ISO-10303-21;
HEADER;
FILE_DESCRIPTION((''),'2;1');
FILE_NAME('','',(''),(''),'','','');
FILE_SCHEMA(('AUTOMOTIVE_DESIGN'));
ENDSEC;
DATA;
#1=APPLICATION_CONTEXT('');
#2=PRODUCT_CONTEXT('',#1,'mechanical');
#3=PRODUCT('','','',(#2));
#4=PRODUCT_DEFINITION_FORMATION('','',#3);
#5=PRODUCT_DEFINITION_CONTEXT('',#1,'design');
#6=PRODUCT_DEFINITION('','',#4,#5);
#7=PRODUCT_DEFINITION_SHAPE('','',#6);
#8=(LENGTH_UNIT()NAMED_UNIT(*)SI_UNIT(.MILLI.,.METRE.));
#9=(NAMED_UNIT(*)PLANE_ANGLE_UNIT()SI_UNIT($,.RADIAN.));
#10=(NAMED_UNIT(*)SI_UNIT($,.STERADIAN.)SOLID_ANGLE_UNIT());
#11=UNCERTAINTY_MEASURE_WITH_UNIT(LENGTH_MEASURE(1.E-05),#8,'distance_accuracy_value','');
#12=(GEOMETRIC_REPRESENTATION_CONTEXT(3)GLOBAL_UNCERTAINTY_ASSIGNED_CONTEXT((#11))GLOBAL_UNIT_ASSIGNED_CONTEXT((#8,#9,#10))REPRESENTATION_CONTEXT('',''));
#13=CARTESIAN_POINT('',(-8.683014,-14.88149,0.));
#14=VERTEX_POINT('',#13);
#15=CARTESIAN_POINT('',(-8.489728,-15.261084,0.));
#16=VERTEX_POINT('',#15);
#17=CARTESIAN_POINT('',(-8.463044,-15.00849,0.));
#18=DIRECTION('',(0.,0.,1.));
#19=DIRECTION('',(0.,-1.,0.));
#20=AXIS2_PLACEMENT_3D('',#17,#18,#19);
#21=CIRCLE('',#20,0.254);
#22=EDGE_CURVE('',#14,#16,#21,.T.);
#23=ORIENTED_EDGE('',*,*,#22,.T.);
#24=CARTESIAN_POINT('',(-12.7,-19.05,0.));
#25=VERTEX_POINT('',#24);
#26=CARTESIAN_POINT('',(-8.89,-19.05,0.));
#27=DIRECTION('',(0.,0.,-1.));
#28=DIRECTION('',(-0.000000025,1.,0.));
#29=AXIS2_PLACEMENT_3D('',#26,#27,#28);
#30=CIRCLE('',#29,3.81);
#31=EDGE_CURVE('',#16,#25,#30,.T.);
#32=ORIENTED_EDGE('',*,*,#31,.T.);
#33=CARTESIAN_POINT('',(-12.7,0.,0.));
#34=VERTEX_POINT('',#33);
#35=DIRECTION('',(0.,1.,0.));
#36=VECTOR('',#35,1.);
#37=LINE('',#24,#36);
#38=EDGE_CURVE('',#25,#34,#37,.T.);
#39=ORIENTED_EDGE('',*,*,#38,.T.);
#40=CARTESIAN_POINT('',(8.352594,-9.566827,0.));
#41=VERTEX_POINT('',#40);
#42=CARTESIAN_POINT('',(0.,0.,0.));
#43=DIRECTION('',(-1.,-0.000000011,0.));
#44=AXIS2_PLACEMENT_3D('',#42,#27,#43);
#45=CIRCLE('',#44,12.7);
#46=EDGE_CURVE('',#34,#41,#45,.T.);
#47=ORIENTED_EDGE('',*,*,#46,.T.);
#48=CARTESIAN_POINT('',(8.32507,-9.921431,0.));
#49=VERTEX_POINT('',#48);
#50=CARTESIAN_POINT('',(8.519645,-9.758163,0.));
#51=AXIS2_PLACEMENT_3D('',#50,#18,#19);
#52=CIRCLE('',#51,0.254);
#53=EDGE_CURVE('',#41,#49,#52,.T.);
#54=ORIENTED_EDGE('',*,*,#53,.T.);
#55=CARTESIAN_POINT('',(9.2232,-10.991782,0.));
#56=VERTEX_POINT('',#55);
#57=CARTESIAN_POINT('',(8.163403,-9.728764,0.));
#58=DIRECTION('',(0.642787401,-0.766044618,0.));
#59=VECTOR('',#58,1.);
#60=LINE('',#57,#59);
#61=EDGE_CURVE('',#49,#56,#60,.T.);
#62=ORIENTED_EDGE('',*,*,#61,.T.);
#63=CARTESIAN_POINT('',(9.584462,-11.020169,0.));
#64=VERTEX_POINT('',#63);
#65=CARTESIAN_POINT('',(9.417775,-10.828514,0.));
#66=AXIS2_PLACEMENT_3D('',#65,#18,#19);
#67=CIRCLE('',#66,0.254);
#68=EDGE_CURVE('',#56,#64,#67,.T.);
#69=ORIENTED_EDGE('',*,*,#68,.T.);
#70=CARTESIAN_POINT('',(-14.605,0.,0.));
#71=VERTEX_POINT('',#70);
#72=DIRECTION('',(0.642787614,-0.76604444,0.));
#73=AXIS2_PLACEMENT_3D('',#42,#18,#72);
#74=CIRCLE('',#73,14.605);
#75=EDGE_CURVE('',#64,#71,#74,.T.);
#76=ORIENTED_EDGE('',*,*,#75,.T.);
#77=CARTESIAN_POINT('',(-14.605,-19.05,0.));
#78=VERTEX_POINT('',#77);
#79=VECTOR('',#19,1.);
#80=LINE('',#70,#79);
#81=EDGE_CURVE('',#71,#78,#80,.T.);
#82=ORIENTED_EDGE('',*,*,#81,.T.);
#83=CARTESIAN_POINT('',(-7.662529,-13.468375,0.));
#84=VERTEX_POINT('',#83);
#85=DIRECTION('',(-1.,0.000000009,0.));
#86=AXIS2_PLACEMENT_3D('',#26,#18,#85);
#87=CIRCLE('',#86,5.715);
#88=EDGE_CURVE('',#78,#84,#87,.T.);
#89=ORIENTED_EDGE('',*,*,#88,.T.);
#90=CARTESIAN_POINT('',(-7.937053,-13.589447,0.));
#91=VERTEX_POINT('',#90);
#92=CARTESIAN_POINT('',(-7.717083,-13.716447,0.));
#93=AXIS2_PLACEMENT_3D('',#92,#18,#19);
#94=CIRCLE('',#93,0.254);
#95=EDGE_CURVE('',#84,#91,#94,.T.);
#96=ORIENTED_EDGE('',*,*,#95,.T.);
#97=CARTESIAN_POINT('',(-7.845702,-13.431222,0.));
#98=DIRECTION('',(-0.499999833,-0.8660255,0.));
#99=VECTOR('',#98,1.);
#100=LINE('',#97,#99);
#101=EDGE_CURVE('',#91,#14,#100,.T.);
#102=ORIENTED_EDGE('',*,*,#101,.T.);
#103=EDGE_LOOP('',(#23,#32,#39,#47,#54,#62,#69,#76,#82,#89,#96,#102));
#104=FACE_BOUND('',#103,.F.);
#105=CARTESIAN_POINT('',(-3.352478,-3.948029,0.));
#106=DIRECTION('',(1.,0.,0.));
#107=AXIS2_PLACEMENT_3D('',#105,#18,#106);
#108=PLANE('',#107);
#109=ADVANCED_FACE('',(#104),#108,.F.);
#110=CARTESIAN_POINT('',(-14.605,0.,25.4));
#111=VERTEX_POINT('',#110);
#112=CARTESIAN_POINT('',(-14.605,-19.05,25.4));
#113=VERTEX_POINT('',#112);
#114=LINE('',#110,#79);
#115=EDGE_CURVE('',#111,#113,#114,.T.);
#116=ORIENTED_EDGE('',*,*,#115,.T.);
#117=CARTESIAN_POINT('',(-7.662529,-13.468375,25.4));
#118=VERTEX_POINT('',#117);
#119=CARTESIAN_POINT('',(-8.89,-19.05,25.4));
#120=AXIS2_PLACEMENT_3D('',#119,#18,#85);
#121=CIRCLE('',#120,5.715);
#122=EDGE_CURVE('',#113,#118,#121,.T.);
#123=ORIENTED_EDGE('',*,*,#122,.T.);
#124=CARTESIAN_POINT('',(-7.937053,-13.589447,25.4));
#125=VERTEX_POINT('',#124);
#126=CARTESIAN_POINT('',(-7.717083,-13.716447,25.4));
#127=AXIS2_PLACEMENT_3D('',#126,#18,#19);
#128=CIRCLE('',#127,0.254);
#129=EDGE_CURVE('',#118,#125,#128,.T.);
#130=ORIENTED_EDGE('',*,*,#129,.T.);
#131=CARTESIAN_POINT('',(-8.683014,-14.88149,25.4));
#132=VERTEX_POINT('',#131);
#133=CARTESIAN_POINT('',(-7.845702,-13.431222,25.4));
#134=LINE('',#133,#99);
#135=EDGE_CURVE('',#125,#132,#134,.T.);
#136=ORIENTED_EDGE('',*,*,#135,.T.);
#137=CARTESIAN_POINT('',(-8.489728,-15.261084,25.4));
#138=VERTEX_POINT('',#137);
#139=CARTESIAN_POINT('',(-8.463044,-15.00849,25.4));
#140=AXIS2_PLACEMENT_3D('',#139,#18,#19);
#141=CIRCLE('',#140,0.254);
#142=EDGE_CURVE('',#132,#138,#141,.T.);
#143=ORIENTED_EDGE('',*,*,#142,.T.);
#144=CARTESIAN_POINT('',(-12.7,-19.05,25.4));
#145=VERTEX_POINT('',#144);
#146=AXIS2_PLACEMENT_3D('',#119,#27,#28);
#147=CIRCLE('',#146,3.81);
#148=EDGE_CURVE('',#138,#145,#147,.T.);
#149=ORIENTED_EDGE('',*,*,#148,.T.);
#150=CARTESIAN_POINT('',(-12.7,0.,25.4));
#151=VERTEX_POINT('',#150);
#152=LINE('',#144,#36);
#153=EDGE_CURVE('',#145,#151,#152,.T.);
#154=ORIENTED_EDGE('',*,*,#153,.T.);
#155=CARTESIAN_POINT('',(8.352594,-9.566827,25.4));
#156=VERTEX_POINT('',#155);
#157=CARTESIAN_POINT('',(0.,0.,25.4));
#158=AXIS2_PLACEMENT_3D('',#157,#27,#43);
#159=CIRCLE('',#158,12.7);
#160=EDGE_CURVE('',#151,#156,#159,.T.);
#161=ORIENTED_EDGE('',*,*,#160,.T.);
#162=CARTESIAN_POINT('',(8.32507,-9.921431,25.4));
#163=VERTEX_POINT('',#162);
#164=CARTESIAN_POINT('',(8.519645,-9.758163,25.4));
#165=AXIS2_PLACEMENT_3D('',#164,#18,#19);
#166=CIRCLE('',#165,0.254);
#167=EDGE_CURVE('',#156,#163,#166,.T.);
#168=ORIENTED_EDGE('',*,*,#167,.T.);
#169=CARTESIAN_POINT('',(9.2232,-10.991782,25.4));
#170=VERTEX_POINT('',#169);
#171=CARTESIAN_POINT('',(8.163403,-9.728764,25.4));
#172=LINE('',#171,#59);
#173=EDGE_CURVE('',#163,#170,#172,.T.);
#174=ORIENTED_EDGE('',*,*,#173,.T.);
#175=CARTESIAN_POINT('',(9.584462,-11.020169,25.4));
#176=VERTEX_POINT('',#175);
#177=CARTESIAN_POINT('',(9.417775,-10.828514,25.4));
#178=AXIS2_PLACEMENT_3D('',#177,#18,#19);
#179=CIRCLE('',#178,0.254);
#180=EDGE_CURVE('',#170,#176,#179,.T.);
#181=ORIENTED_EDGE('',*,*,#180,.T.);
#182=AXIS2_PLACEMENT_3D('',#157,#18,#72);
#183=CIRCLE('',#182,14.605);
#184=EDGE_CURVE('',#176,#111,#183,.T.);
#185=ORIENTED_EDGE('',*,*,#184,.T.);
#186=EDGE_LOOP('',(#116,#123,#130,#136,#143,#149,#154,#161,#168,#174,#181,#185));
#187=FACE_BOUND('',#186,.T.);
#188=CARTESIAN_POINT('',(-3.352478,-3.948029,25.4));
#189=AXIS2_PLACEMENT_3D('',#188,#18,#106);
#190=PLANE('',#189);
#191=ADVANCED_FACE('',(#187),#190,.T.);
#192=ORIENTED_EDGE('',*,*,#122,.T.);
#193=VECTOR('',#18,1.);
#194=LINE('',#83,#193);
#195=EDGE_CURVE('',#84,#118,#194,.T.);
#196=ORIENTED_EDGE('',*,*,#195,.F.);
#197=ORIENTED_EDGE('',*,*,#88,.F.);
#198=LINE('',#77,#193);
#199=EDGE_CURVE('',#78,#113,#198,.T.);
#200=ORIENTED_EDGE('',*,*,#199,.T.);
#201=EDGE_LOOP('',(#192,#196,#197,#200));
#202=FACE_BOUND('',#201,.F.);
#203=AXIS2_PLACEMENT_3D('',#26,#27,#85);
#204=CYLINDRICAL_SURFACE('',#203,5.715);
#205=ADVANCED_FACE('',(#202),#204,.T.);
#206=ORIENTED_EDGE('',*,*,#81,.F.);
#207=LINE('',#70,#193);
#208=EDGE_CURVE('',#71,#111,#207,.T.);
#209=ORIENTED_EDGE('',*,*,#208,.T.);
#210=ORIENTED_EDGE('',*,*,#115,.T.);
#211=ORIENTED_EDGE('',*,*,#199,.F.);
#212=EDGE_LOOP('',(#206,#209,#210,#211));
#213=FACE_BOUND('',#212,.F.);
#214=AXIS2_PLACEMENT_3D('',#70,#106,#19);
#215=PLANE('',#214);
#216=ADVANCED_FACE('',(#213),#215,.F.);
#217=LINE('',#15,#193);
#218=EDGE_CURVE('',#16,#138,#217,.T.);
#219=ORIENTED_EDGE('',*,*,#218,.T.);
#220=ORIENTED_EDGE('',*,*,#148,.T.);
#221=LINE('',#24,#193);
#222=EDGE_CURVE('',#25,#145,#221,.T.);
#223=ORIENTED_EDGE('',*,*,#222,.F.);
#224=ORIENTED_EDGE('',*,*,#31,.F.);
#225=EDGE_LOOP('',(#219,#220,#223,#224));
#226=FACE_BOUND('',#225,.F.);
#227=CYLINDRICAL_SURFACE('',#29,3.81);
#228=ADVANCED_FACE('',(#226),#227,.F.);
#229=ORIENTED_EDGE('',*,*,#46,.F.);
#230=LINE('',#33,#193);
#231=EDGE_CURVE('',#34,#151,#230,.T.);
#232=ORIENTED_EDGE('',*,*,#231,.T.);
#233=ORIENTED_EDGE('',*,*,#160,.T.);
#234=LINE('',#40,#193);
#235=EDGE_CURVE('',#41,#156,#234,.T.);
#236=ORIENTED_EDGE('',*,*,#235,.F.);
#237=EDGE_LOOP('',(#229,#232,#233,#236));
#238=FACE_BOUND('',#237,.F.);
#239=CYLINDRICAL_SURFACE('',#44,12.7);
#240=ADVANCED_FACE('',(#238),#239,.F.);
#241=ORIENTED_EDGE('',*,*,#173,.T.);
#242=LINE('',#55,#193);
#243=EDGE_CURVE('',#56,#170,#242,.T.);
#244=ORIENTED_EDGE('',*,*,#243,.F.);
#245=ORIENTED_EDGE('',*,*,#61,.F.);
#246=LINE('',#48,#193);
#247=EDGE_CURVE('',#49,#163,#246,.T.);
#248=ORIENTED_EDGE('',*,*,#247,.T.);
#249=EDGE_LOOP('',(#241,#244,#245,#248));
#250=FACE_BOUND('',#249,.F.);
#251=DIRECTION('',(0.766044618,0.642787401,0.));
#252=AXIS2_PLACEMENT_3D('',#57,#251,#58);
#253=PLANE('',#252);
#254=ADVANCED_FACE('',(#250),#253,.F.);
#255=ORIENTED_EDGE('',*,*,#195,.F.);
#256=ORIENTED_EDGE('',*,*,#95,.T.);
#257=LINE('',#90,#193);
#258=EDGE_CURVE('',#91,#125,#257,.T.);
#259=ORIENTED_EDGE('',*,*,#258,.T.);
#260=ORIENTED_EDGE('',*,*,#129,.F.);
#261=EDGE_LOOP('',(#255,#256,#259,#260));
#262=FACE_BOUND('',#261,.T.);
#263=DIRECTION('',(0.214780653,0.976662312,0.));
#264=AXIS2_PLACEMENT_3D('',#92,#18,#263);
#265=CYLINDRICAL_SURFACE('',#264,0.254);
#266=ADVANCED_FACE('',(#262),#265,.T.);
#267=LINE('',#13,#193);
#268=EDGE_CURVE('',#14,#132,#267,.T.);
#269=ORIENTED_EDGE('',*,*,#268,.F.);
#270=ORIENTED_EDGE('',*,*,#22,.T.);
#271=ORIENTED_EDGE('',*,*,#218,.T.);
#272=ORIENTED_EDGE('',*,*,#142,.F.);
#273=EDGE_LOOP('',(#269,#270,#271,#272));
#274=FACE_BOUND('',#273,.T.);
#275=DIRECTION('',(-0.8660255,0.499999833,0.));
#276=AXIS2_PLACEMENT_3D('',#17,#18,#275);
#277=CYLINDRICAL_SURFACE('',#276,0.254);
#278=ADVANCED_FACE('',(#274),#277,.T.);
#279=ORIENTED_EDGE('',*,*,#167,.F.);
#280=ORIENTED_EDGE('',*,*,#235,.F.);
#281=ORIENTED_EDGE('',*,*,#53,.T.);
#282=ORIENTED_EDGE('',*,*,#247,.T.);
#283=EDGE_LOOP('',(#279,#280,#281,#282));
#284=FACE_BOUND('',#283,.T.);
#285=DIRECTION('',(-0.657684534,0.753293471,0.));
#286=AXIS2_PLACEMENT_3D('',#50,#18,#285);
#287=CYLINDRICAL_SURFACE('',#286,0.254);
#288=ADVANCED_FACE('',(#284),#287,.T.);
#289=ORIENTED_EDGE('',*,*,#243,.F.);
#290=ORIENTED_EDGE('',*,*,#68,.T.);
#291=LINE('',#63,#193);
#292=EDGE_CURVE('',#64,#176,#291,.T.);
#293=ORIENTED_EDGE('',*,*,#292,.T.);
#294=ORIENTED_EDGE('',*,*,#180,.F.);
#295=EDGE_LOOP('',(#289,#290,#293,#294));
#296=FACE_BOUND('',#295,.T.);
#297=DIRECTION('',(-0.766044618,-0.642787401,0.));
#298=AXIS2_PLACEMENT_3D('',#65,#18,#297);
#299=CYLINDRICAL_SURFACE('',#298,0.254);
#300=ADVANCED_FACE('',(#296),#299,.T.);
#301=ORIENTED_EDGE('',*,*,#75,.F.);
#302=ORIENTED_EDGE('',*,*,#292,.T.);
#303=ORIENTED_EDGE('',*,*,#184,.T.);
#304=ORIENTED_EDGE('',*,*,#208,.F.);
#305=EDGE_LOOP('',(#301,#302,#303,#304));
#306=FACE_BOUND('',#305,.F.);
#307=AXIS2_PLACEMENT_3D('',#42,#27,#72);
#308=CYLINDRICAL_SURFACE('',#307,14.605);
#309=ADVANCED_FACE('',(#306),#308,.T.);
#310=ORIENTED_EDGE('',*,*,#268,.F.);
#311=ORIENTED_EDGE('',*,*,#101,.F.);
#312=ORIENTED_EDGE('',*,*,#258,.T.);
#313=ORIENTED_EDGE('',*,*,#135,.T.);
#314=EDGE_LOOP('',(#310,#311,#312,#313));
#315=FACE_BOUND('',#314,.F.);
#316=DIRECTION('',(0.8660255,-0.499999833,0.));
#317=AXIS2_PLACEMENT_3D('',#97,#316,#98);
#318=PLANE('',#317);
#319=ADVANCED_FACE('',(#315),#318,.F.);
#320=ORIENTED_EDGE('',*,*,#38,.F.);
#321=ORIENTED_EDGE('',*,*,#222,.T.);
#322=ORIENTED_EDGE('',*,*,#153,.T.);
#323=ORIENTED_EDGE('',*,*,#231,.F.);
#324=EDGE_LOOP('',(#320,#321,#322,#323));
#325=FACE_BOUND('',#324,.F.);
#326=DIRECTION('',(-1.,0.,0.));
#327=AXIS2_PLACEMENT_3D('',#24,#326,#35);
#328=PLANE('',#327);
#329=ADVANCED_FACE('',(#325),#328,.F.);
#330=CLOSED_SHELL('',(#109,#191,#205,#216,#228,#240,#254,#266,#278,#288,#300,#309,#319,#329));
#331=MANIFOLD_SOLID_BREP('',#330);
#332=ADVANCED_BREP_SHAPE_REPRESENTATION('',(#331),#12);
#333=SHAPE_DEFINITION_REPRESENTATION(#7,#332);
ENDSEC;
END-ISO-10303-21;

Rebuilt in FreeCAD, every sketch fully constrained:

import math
import FreeCAD as App
import Part
import Sketcher
from FreeCAD import Vector
Q = App.Units.Quantity


def edges_at(feature, points):
    """Names of the edges that pass closest to the given points."""
    edges = feature.Shape.Edges
    near = lambda p: min(range(len(edges)), key=lambda i: edges[i].distToShape(Part.Vertex(*p))[0])
    return sorted({f"Edge{near(p) + 1}" for p in points})

doc = App.newDocument("Part")
body = doc.addObject("PartDesign::Body", "Body")

# Sketch on XY plane
sketch1 = body.newObject("Sketcher::SketchObject", "Sketch")
sketch1.AttachmentSupport = (doc.getObject("XY_Plane"), [""])
sketch1.MapMode = "FlatFace"
sketch1.addGeometry(Part.LineSegment(Vector(-12.7, -19.1, 0), Vector(-12.7, 0, 0)), False)
sketch1.addGeometry(Part.ArcOfCircle(Part.Circle(Vector(0, 0, 0), Vector(0, 0, 1), 12.7), math.radians(-50), math.radians(180)), False)
sketch1.addGeometry(Part.LineSegment(Vector(8.2, -9.7, 0), Vector(9.4, -11.2, 0)), False)
sketch1.addGeometry(Part.ArcOfCircle(Part.Circle(Vector(0, 0, 0), Vector(0, 0, 1), 14.6), math.radians(-50), math.radians(180)), False)
sketch1.addGeometry(Part.LineSegment(Vector(-14.6, 0, 0), Vector(-14.6, -19.1, 0)), False)
sketch1.addGeometry(Part.ArcOfCircle(Part.Circle(Vector(-8.9, -19.1, 0), Vector(0, 0, 1), 5.7), math.radians(180), math.radians(439)), False)
sketch1.addGeometry(Part.LineSegment(Vector(-7.8, -13.4, 0), Vector(-8.9, -15.2, 0)), False)
sketch1.addGeometry(Part.ArcOfCircle(Part.Circle(Vector(-8.9, -19.1, 0), Vector(0, 0, 1), 3.8), math.radians(180), math.radians(450)), False)
sketch1.addConstraint(Sketcher.Constraint("Tangent", 0, 2, 1, 2))
sketch1.addConstraint(Sketcher.Constraint("Coincident", 1, 1, 2, 1))
sketch1.addConstraint(Sketcher.Constraint("Coincident", 2, 2, 3, 1))
sketch1.addConstraint(Sketcher.Constraint("Tangent", 3, 2, 4, 1))
sketch1.addConstraint(Sketcher.Constraint("Tangent", 4, 2, 5, 1))
sketch1.addConstraint(Sketcher.Constraint("Coincident", 5, 2, 6, 1))
sketch1.addConstraint(Sketcher.Constraint("Coincident", 6, 2, 7, 2))
sketch1.addConstraint(Sketcher.Constraint("Tangent", 7, 1, 0, 1))
sketch1.addConstraint(Sketcher.Constraint("Vertical", 0))
sketch1.addConstraint(Sketcher.Constraint("Vertical", 4))
sketch1.addConstraint(Sketcher.Constraint("Coincident", 1, 3, -1, 1))
sketch1.addConstraint(Sketcher.Constraint("Coincident", 3, 3, -1, 1))
sketch1.addConstraint(Sketcher.Constraint("Coincident", 7, 3, 5, 3))
sketch1.addConstraint(Sketcher.Constraint("Vertical", 7, 3, 6, 2))
sketch1.addConstraint(Sketcher.Constraint("Radius", 1, Q("0.5 in")))
sketch1.addConstraint(Sketcher.Constraint("Radius", 7, Q("0.15 in")))
sketch1.addConstraint(Sketcher.Constraint("Angle", 2, Q("-50.000016 deg")))
sketch1.addConstraint(Sketcher.Constraint("Angle", 6, Q("-119.999989 deg")))
sketch1.addConstraint(Sketcher.Constraint("Radius", 3, Q("0.575 in")))
sketch1.addConstraint(Sketcher.Constraint("DistanceY", 0, 1, 0, 2, Q("0.75 in")))
sketch1.addConstraint(Sketcher.Constraint("DistanceY", 2, 2, -1, 1, 11.188079))
pad1 = body.newObject("PartDesign::Pad", "Pad")
pad1.Profile = sketch1
pad1.Length = Q("1 in")
doc.recompute()

fillet = body.newObject("PartDesign::Fillet", "Fillet")
fillet.Base = (pad1, edges_at(pad1, [
    (8.163, -9.729, 12.7),
    (9.388, -11.188, 12.7),
    (-7.846, -13.431, 12.7),
    (-8.89, -15.24, 12.7),
]))
fillet.Radius = Q("0.01 in")

doc.recompute()
